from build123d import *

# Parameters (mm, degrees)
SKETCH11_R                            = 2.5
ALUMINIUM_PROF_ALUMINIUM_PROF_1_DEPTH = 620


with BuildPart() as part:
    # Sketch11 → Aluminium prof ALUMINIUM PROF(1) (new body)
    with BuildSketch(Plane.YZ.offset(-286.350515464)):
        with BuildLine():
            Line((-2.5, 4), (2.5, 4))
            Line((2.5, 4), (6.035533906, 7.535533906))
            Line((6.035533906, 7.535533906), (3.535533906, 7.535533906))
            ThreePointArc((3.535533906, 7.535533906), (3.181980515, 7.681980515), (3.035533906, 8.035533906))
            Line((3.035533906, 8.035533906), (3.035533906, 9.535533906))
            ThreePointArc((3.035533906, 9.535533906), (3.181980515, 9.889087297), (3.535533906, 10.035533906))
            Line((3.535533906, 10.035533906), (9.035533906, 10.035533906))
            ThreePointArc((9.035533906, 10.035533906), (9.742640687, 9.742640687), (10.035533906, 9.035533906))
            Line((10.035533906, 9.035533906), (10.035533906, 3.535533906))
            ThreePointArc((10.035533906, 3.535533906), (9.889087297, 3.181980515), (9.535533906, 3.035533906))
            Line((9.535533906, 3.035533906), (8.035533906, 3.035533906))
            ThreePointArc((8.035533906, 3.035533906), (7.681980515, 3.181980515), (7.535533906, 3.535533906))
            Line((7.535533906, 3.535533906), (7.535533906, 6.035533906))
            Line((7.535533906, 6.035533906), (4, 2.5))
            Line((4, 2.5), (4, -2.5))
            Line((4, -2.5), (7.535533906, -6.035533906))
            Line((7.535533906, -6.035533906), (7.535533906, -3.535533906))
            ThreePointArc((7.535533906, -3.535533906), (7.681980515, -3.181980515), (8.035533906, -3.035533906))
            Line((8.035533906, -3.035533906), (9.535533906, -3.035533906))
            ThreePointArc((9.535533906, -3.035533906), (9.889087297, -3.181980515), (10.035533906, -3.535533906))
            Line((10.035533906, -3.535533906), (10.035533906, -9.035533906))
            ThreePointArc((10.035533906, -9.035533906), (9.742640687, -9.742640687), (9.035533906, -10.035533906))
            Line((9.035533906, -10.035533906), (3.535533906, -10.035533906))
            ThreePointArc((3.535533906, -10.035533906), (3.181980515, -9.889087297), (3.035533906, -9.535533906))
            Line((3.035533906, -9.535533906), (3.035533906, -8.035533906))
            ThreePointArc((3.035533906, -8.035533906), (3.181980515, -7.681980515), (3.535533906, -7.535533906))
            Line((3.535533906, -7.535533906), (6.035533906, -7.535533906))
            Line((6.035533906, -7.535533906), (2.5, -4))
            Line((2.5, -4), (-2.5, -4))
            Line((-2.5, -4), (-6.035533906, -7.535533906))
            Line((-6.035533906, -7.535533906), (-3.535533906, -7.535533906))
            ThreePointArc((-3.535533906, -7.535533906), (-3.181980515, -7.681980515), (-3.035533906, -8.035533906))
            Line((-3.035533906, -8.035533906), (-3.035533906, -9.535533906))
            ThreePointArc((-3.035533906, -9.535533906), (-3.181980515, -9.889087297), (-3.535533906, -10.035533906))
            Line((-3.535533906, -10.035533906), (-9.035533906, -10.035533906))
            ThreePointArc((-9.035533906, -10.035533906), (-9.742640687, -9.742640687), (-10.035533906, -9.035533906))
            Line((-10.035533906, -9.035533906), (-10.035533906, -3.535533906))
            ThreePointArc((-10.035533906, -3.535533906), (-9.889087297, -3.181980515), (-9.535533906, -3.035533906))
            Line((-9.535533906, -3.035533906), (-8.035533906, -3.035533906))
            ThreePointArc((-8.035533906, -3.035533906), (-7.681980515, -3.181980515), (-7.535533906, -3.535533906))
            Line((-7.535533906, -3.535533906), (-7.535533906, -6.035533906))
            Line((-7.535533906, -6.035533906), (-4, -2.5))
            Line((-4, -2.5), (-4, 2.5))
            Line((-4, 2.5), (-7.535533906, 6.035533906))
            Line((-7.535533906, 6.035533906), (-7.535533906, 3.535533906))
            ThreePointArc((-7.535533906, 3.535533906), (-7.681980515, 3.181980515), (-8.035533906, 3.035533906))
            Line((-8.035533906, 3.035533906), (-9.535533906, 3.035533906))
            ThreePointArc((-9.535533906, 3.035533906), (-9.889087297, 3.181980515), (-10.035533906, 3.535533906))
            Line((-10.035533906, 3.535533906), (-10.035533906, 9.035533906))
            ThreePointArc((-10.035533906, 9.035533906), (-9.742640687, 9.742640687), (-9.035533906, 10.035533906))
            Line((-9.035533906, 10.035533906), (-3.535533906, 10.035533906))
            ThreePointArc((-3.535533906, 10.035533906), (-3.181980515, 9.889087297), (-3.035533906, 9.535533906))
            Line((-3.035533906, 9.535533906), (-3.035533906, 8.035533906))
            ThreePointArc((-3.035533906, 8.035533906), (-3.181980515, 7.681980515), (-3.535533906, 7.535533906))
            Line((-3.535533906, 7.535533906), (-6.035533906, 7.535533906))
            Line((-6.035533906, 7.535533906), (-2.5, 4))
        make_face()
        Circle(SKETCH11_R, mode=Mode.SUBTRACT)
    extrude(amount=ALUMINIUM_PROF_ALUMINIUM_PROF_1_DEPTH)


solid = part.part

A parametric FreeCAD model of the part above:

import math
import FreeCAD as App
import Part
import Sketcher

doc = App.newDocument("Part")
body = doc.addObject("PartDesign::Body", "Body")

# Sketch on YZ plane
sketch1 = doc.addObject("Sketcher::SketchObject", "Sketch")
body.addObject(sketch1)
sketch1.AttachmentSupport = (doc.YZ_Plane, [""])
sketch1.MapMode = "FlatFace"
sketch1.AttachmentOffset = App.Placement(App.Vector(0, 0, -286.350515), App.Rotation())
sketch1.addGeometry(Part.LineSegment(App.Vector(2.5, 4, 0), App.Vector(-2.5, 4, 0)), False)
sketch1.addGeometry(Part.LineSegment(App.Vector(-2.5, 4, 0), App.Vector(-6.04, 7.54, 0)), False)
sketch1.addGeometry(Part.LineSegment(App.Vector(-6.04, 7.54, 0), App.Vector(-3.54, 7.54, 0)), False)
sketch1.addGeometry(Part.ArcOfCircle(Part.Circle(App.Vector(-3.54, 8.04, 0), App.Vector(0, 0, 1), 0.5), math.radians(-90), math.radians(0)), False)
sketch1.addGeometry(Part.LineSegment(App.Vector(-3.04, 8.04, 0), App.Vector(-3.04, 9.54, 0)), False)
sketch1.addGeometry(Part.ArcOfCircle(Part.Circle(App.Vector(-3.54, 9.54, 0), App.Vector(0, 0, 1), 0.5), math.radians(0), math.radians(90)), False)
sketch1.addGeometry(Part.LineSegment(App.Vector(-3.54, 10.04, 0), App.Vector(-9.04, 10.04, 0)), False)
sketch1.addGeometry(Part.ArcOfCircle(Part.Circle(App.Vector(-9.04, 9.04, 0), App.Vector(0, 0, 1), 1), math.radians(90), math.radians(180)), False)
sketch1.addGeometry(Part.LineSegment(App.Vector(-10.04, 9.04, 0), App.Vector(-10.04, 3.54, 0)), False)
sketch1.addGeometry(Part.ArcOfCircle(Part.Circle(App.Vector(-9.54, 3.54, 0), App.Vector(0, 0, 1), 0.5), math.radians(180), math.radians(270)), False)
sketch1.addGeometry(Part.LineSegment(App.Vector(-9.54, 3.04, 0), App.Vector(-8.04, 3.04, 0)), False)
sketch1.addGeometry(Part.ArcOfCircle(Part.Circle(App.Vector(-8.04, 3.54, 0), App.Vector(0, 0, 1), 0.5), math.radians(-90), math.radians(0)), False)
sketch1.addGeometry(Part.LineSegment(App.Vector(-7.54, 3.54, 0), App.Vector(-7.54, 6.04, 0)), False)
sketch1.addGeometry(Part.LineSegment(App.Vector(-7.54, 6.04, 0), App.Vector(-4, 2.5, 0)), False)
sketch1.addGeometry(Part.LineSegment(App.Vector(-4, 2.5, 0), App.Vector(-4, -2.5, 0)), False)
sketch1.addGeometry(Part.LineSegment(App.Vector(-4, -2.5, 0), App.Vector(-7.54, -6.04, 0)), False)
sketch1.addGeometry(Part.LineSegment(App.Vector(-7.54, -6.04, 0), App.Vector(-7.54, -3.54, 0)), False)
sketch1.addGeometry(Part.ArcOfCircle(Part.Circle(App.Vector(-8.04, -3.54, 0), App.Vector(0, 0, 1), 0.5), math.radians(0), math.radians(90)), False)
sketch1.addGeometry(Part.LineSegment(App.Vector(-8.04, -3.04, 0), App.Vector(-9.54, -3.04, 0)), False)
sketch1.addGeometry(Part.ArcOfCircle(Part.Circle(App.Vector(-9.54, -3.54, 0), App.Vector(0, 0, 1), 0.5), math.radians(90), math.radians(180)), False)
sketch1.addGeometry(Part.LineSegment(App.Vector(-10.04, -3.54, 0), App.Vector(-10.04, -9.04, 0)), False)
sketch1.addGeometry(Part.ArcOfCircle(Part.Circle(App.Vector(-9.04, -9.04, 0), App.Vector(0, 0, 1), 1), math.radians(-180), math.radians(-90)), False)
sketch1.addGeometry(Part.LineSegment(App.Vector(-9.04, -10.04, 0), App.Vector(-3.54, -10.04, 0)), False)
sketch1.addGeometry(Part.ArcOfCircle(Part.Circle(App.Vector(-3.54, -9.54, 0), App.Vector(0, 0, 1), 0.5), math.radians(-90), math.radians(0)), False)
sketch1.addGeometry(Part.LineSegment(App.Vector(-3.04, -9.54, 0), App.Vector(-3.04, -8.04, 0)), False)
sketch1.addGeometry(Part.ArcOfCircle(Part.Circle(App.Vector(-3.54, -8.04, 0), App.Vector(0, 0, 1), 0.5), math.radians(0), math.radians(90)), False)
sketch1.addGeometry(Part.LineSegment(App.Vector(-3.54, -7.54, 0), App.Vector(-6.04, -7.54, 0)), False)
sketch1.addGeometry(Part.LineSegment(App.Vector(-6.04, -7.54, 0), App.Vector(-2.5, -4, 0)), False)
sketch1.addGeometry(Part.LineSegment(App.Vector(-2.5, -4, 0), App.Vector(2.5, -4, 0)), False)
sketch1.addGeometry(Part.LineSegment(App.Vector(2.5, -4, 0), App.Vector(6.04, -7.54, 0)), False)
sketch1.addGeometry(Part.LineSegment(App.Vector(6.04, -7.54, 0), App.Vector(3.54, -7.54, 0)), False)
sketch1.addGeometry(Part.ArcOfCircle(Part.Circle(App.Vector(3.54, -8.04, 0), App.Vector(0, 0, 1), 0.5), math.radians(90), math.radians(180)), False)
sketch1.addGeometry(Part.LineSegment(App.Vector(3.04, -8.04, 0), App.Vector(3.04, -9.54, 0)), False)
sketch1.addGeometry(Part.ArcOfCircle(Part.Circle(App.Vector(3.54, -9.54, 0), App.Vector(0, 0, 1), 0.5), math.radians(180), math.radians(270)), False)
sketch1.addGeometry(Part.LineSegment(App.Vector(3.54, -10.04, 0), App.Vector(9.04, -10.04, 0)), False)
sketch1.addGeometry(Part.ArcOfCircle(Part.Circle(App.Vector(9.04, -9.04, 0), App.Vector(0, 0, 1), 1), math.radians(-90), math.radians(0)), False)
sketch1.addGeometry(Part.LineSegment(App.Vector(10.04, -9.04, 0), App.Vector(10.04, -3.54, 0)), False)
sketch1.addGeometry(Part.ArcOfCircle(Part.Circle(App.Vector(9.54, -3.54, 0), App.Vector(0, 0, 1), 0.5), math.radians(0), math.radians(90)), False)
sketch1.addGeometry(Part.LineSegment(App.Vector(9.54, -3.04, 0), App.Vector(8.04, -3.04, 0)), False)
sketch1.addGeometry(Part.ArcOfCircle(Part.Circle(App.Vector(8.04, -3.54, 0), App.Vector(0, 0, 1), 0.5), math.radians(90), math.radians(180)), False)
sketch1.addGeometry(Part.LineSegment(App.Vector(7.54, -3.54, 0), App.Vector(7.54, -6.04, 0)), False)
sketch1.addGeometry(Part.LineSegment(App.Vector(7.54, -6.04, 0), App.Vector(4, -2.5, 0)), False)
sketch1.addGeometry(Part.LineSegment(App.Vector(4, -2.5, 0), App.Vector(4, 2.5, 0)), False)
sketch1.addGeometry(Part.LineSegment(App.Vector(4, 2.5, 0), App.Vector(7.54, 6.04, 0)), False)
sketch1.addGeometry(Part.LineSegment(App.Vector(7.54, 6.04, 0), App.Vector(7.54, 3.54, 0)), False)
sketch1.addGeometry(Part.ArcOfCircle(Part.Circle(App.Vector(8.04, 3.54, 0), App.Vector(0, 0, 1), 0.5), math.radians(180), math.radians(270)), False)
sketch1.addGeometry(Part.LineSegment(App.Vector(8.04, 3.04, 0), App.Vector(9.54, 3.04, 0)), False)
sketch1.addGeometry(Part.ArcOfCircle(Part.Circle(App.Vector(9.54, 3.54, 0), App.Vector(0, 0, 1), 0.5), math.radians(-90), math.radians(0)), False)
sketch1.addGeometry(Part.LineSegment(App.Vector(10.04, 3.54, 0), App.Vector(10.04, 9.04, 0)), False)
sketch1.addGeometry(Part.ArcOfCircle(Part.Circle(App.Vector(9.04, 9.04, 0), App.Vector(0, 0, 1), 1), math.radians(0), math.radians(90)), False)
sketch1.addGeometry(Part.LineSegment(App.Vector(9.04, 10.04, 0), App.Vector(3.54, 10.04, 0)), False)
sketch1.addGeometry(Part.ArcOfCircle(Part.Circle(App.Vector(3.54, 9.54, 0), App.Vector(0, 0, 1), 0.5), math.radians(90), math.radians(180)), False)
sketch1.addGeometry(Part.LineSegment(App.Vector(3.04, 9.54, 0), App.Vector(3.04, 8.04, 0)), False)
sketch1.addGeometry(Part.ArcOfCircle(Part.Circle(App.Vector(3.54, 8.04, 0), App.Vector(0, 0, 1), 0.5), math.radians(180), math.radians(270)), False)
sketch1.addGeometry(Part.LineSegment(App.Vector(3.54, 7.54, 0), App.Vector(6.04, 7.54, 0)), False)
sketch1.addGeometry(Part.LineSegment(App.Vector(6.04, 7.54, 0), App.Vector(2.5, 4, 0)), False)
sketch1.addGeometry(Part.Circle(App.Vector(0, 0, 0), App.Vector(0, 0, 1), 2.5), False)
sketch1.addConstraint(Sketcher.Constraint("Coincident", 0, 2, 1, 1))
sketch1.addConstraint(Sketcher.Constraint("Coincident", 1, 2, 2, 1))
sketch1.addConstraint(Sketcher.Constraint("Tangent", 2, 2, 3, 1))
sketch1.addConstraint(Sketcher.Constraint("Tangent", 3, 2, 4, 1))
sketch1.addConstraint(Sketcher.Constraint("Tangent", 4, 2, 5, 1))
sketch1.addConstraint(Sketcher.Constraint("Tangent", 5, 2, 6, 1))
sketch1.addConstraint(Sketcher.Constraint("Tangent", 6, 2, 7, 1))
sketch1.addConstraint(Sketcher.Constraint("Tangent", 7, 2, 8, 1))
sketch1.addConstraint(Sketcher.Constraint("Tangent", 8, 2, 9, 1))
sketch1.addConstraint(Sketcher.Constraint("Tangent", 9, 2, 10, 1))
sketch1.addConstraint(Sketcher.Constraint("Tangent", 10, 2, 11, 1))
sketch1.addConstraint(Sketcher.Constraint("Tangent", 11, 2, 12, 1))
sketch1.addConstraint(Sketcher.Constraint("Coincident", 12, 2, 13, 1))
sketch1.addConstraint(Sketcher.Constraint("Coincident", 13, 2, 14, 1))
sketch1.addConstraint(Sketcher.Constraint("Coincident", 14, 2, 15, 1))
sketch1.addConstraint(Sketcher.Constraint("Coincident", 15, 2, 16, 1))
sketch1.addConstraint(Sketcher.Constraint("Tangent", 16, 2, 17, 1))
sketch1.addConstraint(Sketcher.Constraint("Tangent", 17, 2, 18, 1))
sketch1.addConstraint(Sketcher.Constraint("Tangent", 18, 2, 19, 1))
sketch1.addConstraint(Sketcher.Constraint("Tangent", 19, 2, 20, 1))
sketch1.addConstraint(Sketcher.Constraint("Tangent", 20, 2, 21, 1))
sketch1.addConstraint(Sketcher.Constraint("Tangent", 21, 2, 22, 1))
sketch1.addConstraint(Sketcher.Constraint("Tangent", 22, 2, 23, 1))
sketch1.addConstraint(Sketcher.Constraint("Tangent", 23, 2, 24, 1))
sketch1.addConstraint(Sketcher.Constraint("Tangent", 24, 2, 25, 1))
sketch1.addConstraint(Sketcher.Constraint("Tangent", 25, 2, 26, 1))
sketch1.addConstraint(Sketcher.Constraint("Coincident", 26, 2, 27, 1))
sketch1.addConstraint(Sketcher.Constraint("Coincident", 27, 2, 28, 1))
sketch1.addConstraint(Sketcher.Constraint("Coincident", 28, 2, 29, 1))
sketch1.addConstraint(Sketcher.Constraint("Coincident", 29, 2, 30, 1))
sketch1.addConstraint(Sketcher.Constraint("Tangent", 30, 2, 31, 1))
sketch1.addConstraint(Sketcher.Constraint("Tangent", 31, 2, 32, 1))
sketch1.addConstraint(Sketcher.Constraint("Tangent", 32, 2, 33, 1))
sketch1.addConstraint(Sketcher.Constraint("Tangent", 33, 2, 34, 1))
sketch1.addConstraint(Sketcher.Constraint("Tangent", 34, 2, 35, 1))
sketch1.addConstraint(Sketcher.Constraint("Tangent", 35, 2, 36, 1))
sketch1.addConstraint(Sketcher.Constraint("Tangent", 36, 2, 37, 1))
sketch1.addConstraint(Sketcher.Constraint("Tangent", 37, 2, 38, 1))
sketch1.addConstraint(Sketcher.Constraint("Tangent", 38, 2, 39, 1))
sketch1.addConstraint(Sketcher.Constraint("Tangent", 39, 2, 40, 1))
sketch1.addConstraint(Sketcher.Constraint("Coincident", 40, 2, 41, 1))
sketch1.addConstraint(Sketcher.Constraint("Coincident", 41, 2, 42, 1))
sketch1.addConstraint(Sketcher.Constraint("Coincident", 42, 2, 43, 1))
sketch1.addConstraint(Sketcher.Constraint("Coincident", 43, 2, 44, 1))
sketch1.addConstraint(Sketcher.Constraint("Tangent", 44, 2, 45, 1))
sketch1.addConstraint(Sketcher.Constraint("Tangent", 45, 2, 46, 1))
sketch1.addConstraint(Sketcher.Constraint("Tangent", 46, 2, 47, 1))
sketch1.addConstraint(Sketcher.Constraint("Tangent", 47, 2, 48, 1))
sketch1.addConstraint(Sketcher.Constraint("Tangent", 48, 2, 49, 1))
sketch1.addConstraint(Sketcher.Constraint("Tangent", 49, 2, 50, 1))
sketch1.addConstraint(Sketcher.Constraint("Tangent", 50, 2, 51, 1))
sketch1.addConstraint(Sketcher.Constraint("Tangent", 51, 2, 52, 1))
sketch1.addConstraint(Sketcher.Constraint("Tangent", 52, 2, 53, 1))
sketch1.addConstraint(Sketcher.Constraint("Tangent", 53, 2, 54, 1))
sketch1.addConstraint(Sketcher.Constraint("Coincident", 54, 2, 55, 1))
sketch1.addConstraint(Sketcher.Constraint("Coincident", 55, 2, 0, 1))
sketch1.addConstraint(Sketcher.Constraint("Horizontal", 0))
sketch1.addConstraint(Sketcher.Constraint("Horizontal", 2))
sketch1.addConstraint(Sketcher.Constraint("Vertical", 4))
sketch1.addConstraint(Sketcher.Constraint("Horizontal", 6))
sketch1.addConstraint(Sketcher.Constraint("Vertical", 8))
sketch1.addConstraint(Sketcher.Constraint("Horizontal", 10))
sketch1.addConstraint(Sketcher.Constraint("Vertical", 12))
sketch1.addConstraint(Sketcher.Constraint("Vertical", 14))
sketch1.addConstraint(Sketcher.Constraint("Vertical", 16))
sketch1.addConstraint(Sketcher.Constraint("Horizontal", 18))
sketch1.addConstraint(Sketcher.Constraint("Vertical", 20))
sketch1.addConstraint(Sketcher.Constraint("Horizontal", 22))
sketch1.addConstraint(Sketcher.Constraint("Vertical", 24))
sketch1.addConstraint(Sketcher.Constraint("Horizontal", 26))
sketch1.addConstraint(Sketcher.Constraint("Horizontal", 28))
sketch1.addConstraint(Sketcher.Constraint("Horizontal", 30))
sketch1.addConstraint(Sketcher.Constraint("Vertical", 32))
sketch1.addConstraint(Sketcher.Constraint("Horizontal", 34))
sketch1.addConstraint(Sketcher.Constraint("Vertical", 36))
sketch1.addConstraint(Sketcher.Constraint("Horizontal", 38))
sketch1.addConstraint(Sketcher.Constraint("Vertical", 40))
sketch1.addConstraint(Sketcher.Constraint("Vertical", 42))
sketch1.addConstraint(Sketcher.Constraint("Vertical", 44))
sketch1.addConstraint(Sketcher.Constraint("Horizontal", 46))
sketch1.addConstraint(Sketcher.Constraint("Vertical", 48))
sketch1.addConstraint(Sketcher.Constraint("Horizontal", 50))
sketch1.addConstraint(Sketcher.Constraint("Vertical", 52))
sketch1.addConstraint(Sketcher.Constraint("Horizontal", 54))
sketch1.addConstraint(Sketcher.Constraint("Coincident", 56, 3, -1, 1))
sketch1.addConstraint(Sketcher.Constraint("Equal", 3, 5))
sketch1.addConstraint(Sketcher.Constraint("Equal", 5, 9))
sketch1.addConstraint(Sketcher.Constraint("Equal", 9, 11))
sketch1.addConstraint(Sketcher.Constraint("Equal", 11, 17))
sketch1.addConstraint(Sketcher.Constraint("Equal", 17, 19))
sketch1.addConstraint(Sketcher.Constraint("Equal", 7, 21))
sketch1.addConstraint(Sketcher.Constraint("Equal", 19, 23))
sketch1.addConstraint(Sketcher.Constraint("Equal", 23, 25))
sketch1.addConstraint(Sketcher.Constraint("Equal", 25, 31))
sketch1.addConstraint(Sketcher.Constraint("Equal", 31, 33))
sketch1.addConstraint(Sketcher.Constraint("Equal", 21, 35))
sketch1.addConstraint(Sketcher.Constraint("Equal", 33, 37))
sketch1.addConstraint(Sketcher.Constraint("Equal", 37, 39))
sketch1.addConstraint(Sketcher.Constraint("Equal", 39, 45))
sketch1.addConstraint(Sketcher.Constraint("Equal", 45, 47))
sketch1.addConstraint(Sketcher.Constraint("Equal", 35, 49))
sketch1.addConstraint(Sketcher.Constraint("Equal", 47, 51))
sketch1.addConstraint(Sketcher.Constraint("Equal", 51, 53))
sketch1.addConstraint(Sketcher.Constraint("Symmetric", 3, 3, 31, 3, -1, 1))
sketch1.addConstraint(Sketcher.Constraint("Symmetric", 7, 3, 35, 3, -1, 1))
sketch1.addConstraint(Sketcher.Constraint("Symmetric", 11, 3, 39, 3, -1, 1))
sketch1.addConstraint(Sketcher.Constraint("Symmetric", 17, 3, 45, 3, -1, 1))
sketch1.addConstraint(Sketcher.Constraint("Symmetric", 21, 3, 49, 3, -1, 1))
sketch1.addConstraint(Sketcher.Constraint("Symmetric", 25, 3, 53, 3, -1, 1))
sketch1.addConstraint(Sketcher.Constraint("Symmetric", 0, 2, 28, 2, -1, 1))
sketch1.addConstraint(Sketcher.Constraint("Symmetric", 13, 2, 41, 2, -1, 1))
sketch1.addConstraint(Sketcher.Constraint("Symmetric", 25, 3, 31, 3, -2))
sketch1.addConstraint(Sketcher.Constraint("Symmetric", 21, 3, 35, 3, -2))
sketch1.addConstraint(Sketcher.Constraint("Symmetric", 17, 3, 39, 3, -2))
sketch1.addConstraint(Sketcher.Constraint("Parallel", 1, 13))
sketch1.addConstraint(Sketcher.Constraint("Perpendicular", 13, 15))
sketch1.addConstraint(Sketcher.Constraint("Parallel", 15, 27))
sketch1.addConstraint(Sketcher.Constraint("Perpendicular", 27, 29))
sketch1.addConstraint(Sketcher.Constraint("Parallel", 29, 41))
sketch1.addConstraint(Sketcher.Constraint("Perpendicular", 41, 43))
sketch1.addConstraint(Sketcher.Constraint("Parallel", 43, 55))
sketch1.addConstraint(Sketcher.Constraint("Horizontal", 15, 2, 40, 2))
sketch1.addConstraint(Sketcher.Constraint("Horizontal", 14, 2, 41, 2))
sketch1.addConstraint(Sketcher.Constraint("Horizontal", 13, 2, 42, 2))
sketch1.addConstraint(Sketcher.Constraint("Vertical", 1, 2, 26, 2))
sketch1.addConstraint(Sketcher.Constraint("Vertical", 29, 2, 54, 2))
sketch1.addConstraint(Sketcher.Constraint("Equal", 46, 4))
sketch1.addConstraint(Sketcher.Constraint("Equal", 50, 8))
sketch1.addConstraint(Sketcher.Constraint("Equal", 54, 12))
sketch1.addConstraint(Sketcher.Constraint("Equal", 28, 14))
sketch1.addConstraint(Sketcher.Constraint("Equal", 1, 13))
sketch1.addConstraint(Sketcher.Constraint("Diameter", 56, 5.0))
sketch1.addConstraint(Sketcher.Constraint("Radius", 7, 1.0))
sketch1.addConstraint(Sketcher.Constraint("Radius", 3, 0.5))
sketch1.addConstraint(Sketcher.Constraint("DistanceX", 0, 2, 0, 1, 5.0))
sketch1.addConstraint(Sketcher.Constraint("Distance", 1, 5.0))
sketch1.addConstraint(Sketcher.Constraint("DistanceX", 2, 1, 2, 2, 2.5))
sketch1.addConstraint(Sketcher.Constraint("DistanceX", 6, 2, 6, 1, 5.5))
sketch1.addConstraint(Sketcher.Constraint("DistanceX", 10, 1, 10, 2, 1.5))
pad1 = doc.addObject("PartDesign::Pad", "Pad")
body.addObject(pad1)
pad1.Profile = sketch1
pad1.Length = 620

doc.recompute()
